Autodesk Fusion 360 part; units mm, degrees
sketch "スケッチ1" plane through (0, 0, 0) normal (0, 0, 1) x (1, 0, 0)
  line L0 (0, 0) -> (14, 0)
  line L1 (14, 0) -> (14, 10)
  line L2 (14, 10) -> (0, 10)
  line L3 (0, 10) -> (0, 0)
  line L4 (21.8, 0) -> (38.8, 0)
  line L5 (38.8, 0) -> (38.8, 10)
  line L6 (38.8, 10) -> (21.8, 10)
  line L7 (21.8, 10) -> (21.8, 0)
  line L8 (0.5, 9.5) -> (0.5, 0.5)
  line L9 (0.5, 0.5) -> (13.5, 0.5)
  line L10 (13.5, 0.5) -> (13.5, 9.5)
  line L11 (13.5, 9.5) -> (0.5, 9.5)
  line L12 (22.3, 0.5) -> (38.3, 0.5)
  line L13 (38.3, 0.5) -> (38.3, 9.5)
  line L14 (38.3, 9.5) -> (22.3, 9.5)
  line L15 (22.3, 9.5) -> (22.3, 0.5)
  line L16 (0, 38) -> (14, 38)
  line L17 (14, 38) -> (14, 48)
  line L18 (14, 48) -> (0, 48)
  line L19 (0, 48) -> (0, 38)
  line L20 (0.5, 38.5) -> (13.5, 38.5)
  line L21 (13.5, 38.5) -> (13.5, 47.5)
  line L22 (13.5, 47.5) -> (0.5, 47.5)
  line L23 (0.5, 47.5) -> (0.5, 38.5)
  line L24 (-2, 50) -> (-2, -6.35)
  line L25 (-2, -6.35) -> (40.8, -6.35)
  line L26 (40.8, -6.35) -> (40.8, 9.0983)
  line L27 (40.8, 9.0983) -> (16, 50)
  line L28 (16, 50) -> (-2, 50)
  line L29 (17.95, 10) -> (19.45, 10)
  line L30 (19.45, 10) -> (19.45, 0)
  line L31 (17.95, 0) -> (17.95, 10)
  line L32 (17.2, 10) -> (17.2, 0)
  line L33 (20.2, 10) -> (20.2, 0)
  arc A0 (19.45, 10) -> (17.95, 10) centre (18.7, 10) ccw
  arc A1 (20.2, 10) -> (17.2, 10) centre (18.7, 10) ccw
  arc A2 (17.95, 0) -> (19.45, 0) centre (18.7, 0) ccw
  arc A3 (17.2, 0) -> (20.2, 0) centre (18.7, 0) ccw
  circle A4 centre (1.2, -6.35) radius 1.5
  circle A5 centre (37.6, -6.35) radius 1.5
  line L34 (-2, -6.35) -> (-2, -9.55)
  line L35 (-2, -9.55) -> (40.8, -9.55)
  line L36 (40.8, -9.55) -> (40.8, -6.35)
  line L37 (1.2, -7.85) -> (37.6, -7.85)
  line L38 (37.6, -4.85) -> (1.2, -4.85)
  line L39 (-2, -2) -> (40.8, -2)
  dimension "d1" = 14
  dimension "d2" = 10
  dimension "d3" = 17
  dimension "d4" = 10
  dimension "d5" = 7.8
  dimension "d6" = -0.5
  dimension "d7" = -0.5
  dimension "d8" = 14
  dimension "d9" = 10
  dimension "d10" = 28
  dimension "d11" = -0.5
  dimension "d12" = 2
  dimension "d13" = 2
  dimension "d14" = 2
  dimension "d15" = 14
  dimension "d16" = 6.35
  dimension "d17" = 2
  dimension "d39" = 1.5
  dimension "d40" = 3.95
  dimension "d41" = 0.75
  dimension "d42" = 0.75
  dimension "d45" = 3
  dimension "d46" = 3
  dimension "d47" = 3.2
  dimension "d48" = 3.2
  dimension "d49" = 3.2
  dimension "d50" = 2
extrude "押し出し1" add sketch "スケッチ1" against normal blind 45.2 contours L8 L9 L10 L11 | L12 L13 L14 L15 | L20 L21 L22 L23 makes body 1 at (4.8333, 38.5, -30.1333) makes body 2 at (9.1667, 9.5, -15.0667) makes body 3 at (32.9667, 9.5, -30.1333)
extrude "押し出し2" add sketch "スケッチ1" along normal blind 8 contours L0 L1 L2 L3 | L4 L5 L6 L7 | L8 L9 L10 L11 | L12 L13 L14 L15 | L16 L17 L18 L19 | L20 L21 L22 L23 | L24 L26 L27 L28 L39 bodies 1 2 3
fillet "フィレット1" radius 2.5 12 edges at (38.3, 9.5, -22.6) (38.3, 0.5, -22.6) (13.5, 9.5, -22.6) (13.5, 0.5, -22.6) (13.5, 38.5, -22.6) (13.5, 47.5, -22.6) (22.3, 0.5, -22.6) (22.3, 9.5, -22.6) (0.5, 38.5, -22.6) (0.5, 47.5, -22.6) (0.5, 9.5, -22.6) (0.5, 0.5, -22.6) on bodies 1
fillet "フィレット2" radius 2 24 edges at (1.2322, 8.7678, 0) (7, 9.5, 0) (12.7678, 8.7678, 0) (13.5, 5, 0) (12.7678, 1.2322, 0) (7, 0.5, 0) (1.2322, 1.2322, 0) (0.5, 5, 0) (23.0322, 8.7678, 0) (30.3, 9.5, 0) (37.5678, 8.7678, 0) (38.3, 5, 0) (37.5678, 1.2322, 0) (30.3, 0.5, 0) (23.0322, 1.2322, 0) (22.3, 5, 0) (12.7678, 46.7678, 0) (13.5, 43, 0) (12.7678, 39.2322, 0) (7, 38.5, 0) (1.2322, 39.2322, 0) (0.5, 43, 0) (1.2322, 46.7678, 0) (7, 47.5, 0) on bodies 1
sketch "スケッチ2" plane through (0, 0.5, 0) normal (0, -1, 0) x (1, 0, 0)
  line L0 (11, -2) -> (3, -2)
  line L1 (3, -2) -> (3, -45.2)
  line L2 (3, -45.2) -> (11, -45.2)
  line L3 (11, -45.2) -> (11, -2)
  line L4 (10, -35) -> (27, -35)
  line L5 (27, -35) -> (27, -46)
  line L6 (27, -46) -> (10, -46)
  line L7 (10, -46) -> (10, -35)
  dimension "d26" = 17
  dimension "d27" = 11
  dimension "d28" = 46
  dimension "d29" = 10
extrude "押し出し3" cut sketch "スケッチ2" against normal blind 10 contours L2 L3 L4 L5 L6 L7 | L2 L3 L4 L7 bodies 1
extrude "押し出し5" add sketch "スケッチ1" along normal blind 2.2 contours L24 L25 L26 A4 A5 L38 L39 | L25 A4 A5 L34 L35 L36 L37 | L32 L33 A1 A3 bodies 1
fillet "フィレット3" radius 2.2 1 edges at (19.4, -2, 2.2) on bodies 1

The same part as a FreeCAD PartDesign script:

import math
import FreeCAD as App
import Part
import Sketcher
from FreeCAD import Vector
Q = App.Units.Quantity


def edges_at(feature, points):
    """Names of the edges that pass closest to the given points."""
    edges = feature.Shape.Edges
    near = lambda p: min(range(len(edges)), key=lambda i: edges[i].distToShape(Part.Vertex(*p))[0])
    return sorted({f"Edge{near(p) + 1}" for p in points})


def add_polygon(sketch, points):
    """Adds a closed chain of lines whose ends are joined by coincident constraints."""
    first, n = sketch.GeometryCount, len(points)
    for a, b in zip(points, points[1:] + points[:1]):
        sketch.addGeometry(Part.LineSegment(App.Vector(*a, 0), App.Vector(*b, 0)), False)
    for i in range(n):
        sketch.addConstraint(Sketcher.Constraint("Coincident", first + i, 2, first + (i + 1) % n, 1))

doc = App.newDocument("Part")
params = doc.addObject("Spreadsheet::Sheet", "Params")
for row, (alias, value) in enumerate([
    ("sketch1_width", "13 mm"),
    ("sketch1_width2", "16 mm"),
    ("sketch1_height", "9 mm"),
    ("pad1_length", "45.2 mm"),
    ("sketch2_radius", "1.5 mm"),
    ("sketch2_height", "10 mm"),
    ("sketch2_width", "18 mm"),
    ("sketch2_height2", "52 mm"),
    ("sketch2_width2", "42.8 mm"),
    ("pad2_length", "8 mm"),
    ("fillet_radius", "2.5 mm"),
    ("fillet2_radius", "2 mm"),
    ("sketch3_width", "17 mm"),
    ("sketch3_height", "11 mm"),
    ("pocket1_length", "10 mm"),
    ("sketch4_radius", "1.5 mm"),
    ("sketch4_height", "10 mm"),
    ("sketch4_radius2", "0.75 mm"),
    ("sketch4_width", "42.8 mm"),
    ("pad3_length", "2.2 mm"),
    ("fillet3_radius", "2.2 mm"),
], start=1):
    params.set(f"A{row}", alias)
    params.set(f"B{row}", "=" + value)
    params.setAlias(f"B{row}", alias)

body = doc.addObject("PartDesign::Body", "Body")
body.AllowCompound = True

# Sketch on XY plane
sketch1 = doc.addObject("Sketcher::SketchObject", "Sketch")
body.addObject(sketch1)
sketch1.AttachmentSupport = (doc.XY_Plane, [""])
sketch1.MapMode = "FlatFace"
add_polygon(sketch1, [(14, 10), (0, 10), (0, 0), (14, 0)])  # lines 0-3
add_polygon(sketch1, [(22, 10), (22, 0), (38, 0), (38, 10)])  # lines 4-7
add_polygon(sketch1, [(0, 48), (0, 38), (14, 38), (14, 48)])  # lines 8-11
sketch1.addConstraint(Sketcher.Constraint("Horizontal", 0))
sketch1.addConstraint(Sketcher.Constraint("Vertical", 1))
sketch1.addConstraint(Sketcher.Constraint("Horizontal", 2))
sketch1.addConstraint(Sketcher.Constraint("Vertical", 3))
sketch1.addConstraint(Sketcher.Constraint("Vertical", 4))
sketch1.addConstraint(Sketcher.Constraint("Horizontal", 5))
sketch1.addConstraint(Sketcher.Constraint("Vertical", 6))
sketch1.addConstraint(Sketcher.Constraint("Horizontal", 7))
sketch1.addConstraint(Sketcher.Constraint("Vertical", 8))
sketch1.addConstraint(Sketcher.Constraint("Horizontal", 9))
sketch1.addConstraint(Sketcher.Constraint("Vertical", 10))
sketch1.addConstraint(Sketcher.Constraint("Horizontal", 11))
sketch1.addConstraint(Sketcher.Constraint("Horizontal", 2, 2, 4, 2))
sketch1.addConstraint(Sketcher.Constraint("Horizontal", 3, 2, 6, 2))
sketch1.addConstraint(Sketcher.Constraint("Vertical", 1, 2, 8, 2))
sketch1.addConstraint(Sketcher.Constraint("Vertical", 3, 2, 9, 2))
sketch1.addConstraint(Sketcher.Constraint("Equal", 6, 8))
sketch1.addConstraint(Sketcher.Constraint("DistanceX", -1, 1, 0, 2, Q("0.5 mm")))
sketch1.addConstraint(Sketcher.Constraint("DistanceY", -1, 1, 1, 2, Q("0.5 mm")))
sketch1.addConstraint(Sketcher.Constraint("DistanceX", 0, 2, 0, 1, Q("13 mm")))
sketch1.addConstraint(Sketcher.Constraint("DistanceX", 5, 1, 5, 2, Q("16 mm")))
sketch1.addConstraint(Sketcher.Constraint("DistanceY", 1, 2, 1, 1, Q("9 mm")))
sketch1.addConstraint(Sketcher.Constraint("DistanceY", 0, 2, 8, 2, Q("29 mm")))
sketch1.addConstraint(Sketcher.Constraint("DistanceX", -1, 1, 4, 2, Q("22.3 mm")))
sketch1.setExpression("Constraints[31]", "Params.sketch1_width")
sketch1.setExpression("Constraints[32]", "Params.sketch1_width2")
sketch1.setExpression("Constraints[33]", "Params.sketch1_height")
pad1 = doc.addObject("PartDesign::Pad", "Pad")
body.addObject(pad1)
pad1.Profile = sketch1
pad1.setExpression("Length", "Params.pad1_length")
pad1.Reversed = True

# Sketch on XY plane
sketch2 = doc.addObject("Sketcher::SketchObject", "Sketch001")
body.addObject(sketch2)
sketch2.AttachmentSupport = (doc.XY_Plane, [""])
sketch2.MapMode = "FlatFace"
add_polygon(sketch2, [(16, 50), (-2, 50), (-2, -2), (40.8, -2), (40.8, 9.1)])  # lines 0-4
sketch2.addGeometry(Part.LineSegment(Vector(17.2, 0, 0), Vector(17.2, 10, 0)), False)  # 5
sketch2.addGeometry(Part.ArcOfCircle(Part.Circle(Vector(18.7, 10, 0), Vector(0, 0, 1), 1.5), math.radians(0), math.radians(180)), False)  # 6
sketch2.addGeometry(Part.LineSegment(Vector(20.2, 10, 0), Vector(20.2, 0, 0)), False)  # 7
sketch2.addGeometry(Part.ArcOfCircle(Part.Circle(Vector(18.7, 0, 0), Vector(0, 0, 1), 1.5), math.radians(180), math.radians(360)), False)  # 8
sketch2.addConstraint(Sketcher.Constraint("Tangent", 5, 2, 6, 2))
sketch2.addConstraint(Sketcher.Constraint("Tangent", 6, 1, 7, 1))
sketch2.addConstraint(Sketcher.Constraint("Tangent", 7, 2, 8, 2))
sketch2.addConstraint(Sketcher.Constraint("Tangent", 8, 1, 5, 1))
sketch2.addConstraint(Sketcher.Constraint("Horizontal", 0))
sketch2.addConstraint(Sketcher.Constraint("Vertical", 1))
sketch2.addConstraint(Sketcher.Constraint("Horizontal", 2))
sketch2.addConstraint(Sketcher.Constraint("Vertical", 3))
sketch2.addConstraint(Sketcher.Constraint("Vertical", 5))
sketch2.addConstraint(Sketcher.Constraint("Vertical", 7))
sketch2.addConstraint(Sketcher.Constraint("PointOnObject", 8, 3, -1))
sketch2.addConstraint(Sketcher.Constraint("Radius", 6, Q("1.5 mm")))
sketch2.addConstraint(Sketcher.Constraint("DistanceY", 5, 1, 5, 2, Q("10 mm")))
sketch2.addConstraint(Sketcher.Constraint("DistanceX", 0, 2, -1, 1, Q("2 mm")))
sketch2.addConstraint(Sketcher.Constraint("DistanceY", 1, 2, -1, 1, Q("2 mm")))
sketch2.addConstraint(Sketcher.Constraint("DistanceX", 0, 2, 0, 1, Q("18 mm")))
sketch2.addConstraint(Sketcher.Constraint("DistanceY", 1, 2, 1, 1, Q("52 mm")))
sketch2.addConstraint(Sketcher.Constraint("DistanceX", 2, 1, 2, 2, Q("42.8 mm")))
sketch2.addConstraint(Sketcher.Constraint("DistanceX", -1, 1, 6, 3, Q("18.7 mm")))
sketch2.addConstraint(Sketcher.Constraint("Angle", 4, Q("121.2298 deg")))
sketch2.setExpression("Constraints[16]", "Params.sketch2_radius")
sketch2.setExpression("Constraints[17]", "Params.sketch2_height")
sketch2.setExpression("Constraints[20]", "Params.sketch2_width")
sketch2.setExpression("Constraints[21]", "Params.sketch2_height2")
sketch2.setExpression("Constraints[22]", "Params.sketch2_width2")
pad2 = doc.addObject("PartDesign::Pad", "Pad001")
body.addObject(pad2)
pad2.Profile = sketch2
pad2.setExpression("Length", "Params.pad2_length")
doc.recompute()

fillet = doc.addObject("PartDesign::Fillet", "Fillet")
body.addObject(fillet)
fillet.Base = (pad2, edges_at(pad2, [
    (38.3, 9.5, -22.6),
    (38.3, 0.5, -22.6),
    (13.5, 9.5, -22.6),
    (13.5, 0.5, -22.6),
    (13.5, 38.5, -22.6),
    (13.5, 47.5, -22.6),
    (22.3, 0.5, -22.6),
    (22.3, 9.5, -22.6),
    (0.5, 38.5, -22.6),
    (0.5, 47.5, -22.6),
    (0.5, 9.5, -22.6),
    (0.5, 0.5, -22.6),
]))
fillet.setExpression("Radius", "Params.fillet_radius")
doc.recompute()

fillet2 = doc.addObject("PartDesign::Fillet", "Fillet001")
body.addObject(fillet2)
fillet2.Base = (fillet, edges_at(fillet, [
    (1.232, 8.768, 0),
    (7, 9.5, 0),
    (12.768, 8.768, 0),
    (13.5, 5, 0),
    (12.768, 1.232, 0),
    (7, 0.5, 0),
    (1.232, 1.232, 0),
    (0.5, 5, 0),
    (23.032, 8.768, 0),
    (30.3, 9.5, 0),
    (37.568, 8.768, 0),
    (38.3, 5, 0),
    (37.568, 1.232, 0),
    (30.3, 0.5, 0),
    (23.032, 1.232, 0),
    (22.3, 5, 0),
    (12.768, 46.768, 0),
    (13.5, 43, 0),
    (12.768, 39.232, 0),
    (7, 38.5, 0),
    (1.232, 39.232, 0),
    (0.5, 43, 0),
    (1.232, 46.768, 0),
    (7, 47.5, 0),
]))
fillet2.setExpression("Radius", "Params.fillet2_radius")

# Sketch on XZ plane
sketch3 = doc.addObject("Sketcher::SketchObject", "Sketch002")
body.addObject(sketch3)
sketch3.AttachmentSupport = (doc.XZ_Plane, [""])
sketch3.MapMode = "FlatFace"
sketch3.AttachmentOffset = App.Placement(Vector(0, 0, -0.5), App.Rotation())
add_polygon(sketch3, [(27, -35), (10, -35), (10, -46), (27, -46)])  # lines 0-3
sketch3.addConstraint(Sketcher.Constraint("Horizontal", 0))
sketch3.addConstraint(Sketcher.Constraint("Vertical", 1))
sketch3.addConstraint(Sketcher.Constraint("Horizontal", 2))
sketch3.addConstraint(Sketcher.Constraint("Vertical", 3))
sketch3.addConstraint(Sketcher.Constraint("DistanceX", 0, 2, 0, 1, Q("17 mm")))
sketch3.addConstraint(Sketcher.Constraint("DistanceY", 1, 2, 1, 1, Q("11 mm")))
sketch3.addConstraint(Sketcher.Constraint("DistanceX", -1, 1, 0, 2, Q("10 mm")))
sketch3.addConstraint(Sketcher.Constraint("DistanceY", 1, 2, -1, 1, Q("46 mm")))
sketch3.setExpression("Constraints[8]", "Params.sketch3_width")
sketch3.setExpression("Constraints[9]", "Params.sketch3_height")
pocket1 = doc.addObject("PartDesign::Pocket", "Pocket")
body.addObject(pocket1)
pocket1.Profile = sketch3
pocket1.setExpression("Length", "Params.pocket1_length")

# Sketch on XY plane
sketch4 = doc.addObject("Sketcher::SketchObject", "Sketch003")
body.addObject(sketch4)
sketch4.AttachmentSupport = (doc.XY_Plane, [""])
sketch4.MapMode = "FlatFace"
add_polygon(sketch4, [(40.8, -2), (-2, -2), (-2, -9.6), (40.8, -9.6)])  # lines 0-3
sketch4.addGeometry(Part.ArcOfCircle(Part.Circle(Vector(37.6, -6.3, 0), Vector(0, 0, 1), 1.5), math.radians(-90), math.radians(90)), False)  # 4
sketch4.addGeometry(Part.LineSegment(Vector(37.6, -7.8, 0), Vector(1.2, -7.8, 0)), False)  # 5
sketch4.addGeometry(Part.ArcOfCircle(Part.Circle(Vector(1.2, -6.3, 0), Vector(0, 0, 1), 1.5), math.radians(90), math.radians(270)), False)  # 6
sketch4.addGeometry(Part.LineSegment(Vector(1.2, -4.8, 0), Vector(37.6, -4.8, 0)), False)  # 7
sketch4.addGeometry(Part.ArcOfCircle(Part.Circle(Vector(18.7, 10, 0), Vector(0, 0, 1), 1.5), math.radians(0), math.radians(180)), False)  # 8
sketch4.addGeometry(Part.LineSegment(Vector(17.2, 10, 0), Vector(17.2, 0, 0)), False)  # 9
sketch4.addGeometry(Part.ArcOfCircle(Part.Circle(Vector(18.7, 0, 0), Vector(0, 0, 1), 1.5), math.radians(180), math.radians(360)), False)  # 10
sketch4.addGeometry(Part.LineSegment(Vector(20.2, 0, 0), Vector(20.2, 10, 0)), False)  # 11
sketch4.addGeometry(Part.LineSegment(Vector(17.9, 0, 0), Vector(17.9, 10, 0)), False)  # 12
sketch4.addGeometry(Part.ArcOfCircle(Part.Circle(Vector(18.7, 10, 0), Vector(0, 0, 1), 0.8), math.radians(0), math.radians(180)), False)  # 13
sketch4.addGeometry(Part.LineSegment(Vector(19.4, 10, 0), Vector(19.4, 0, 0)), False)  # 14
sketch4.addGeometry(Part.ArcOfCircle(Part.Circle(Vector(18.7, 0, 0), Vector(0, 0, 1), 0.8), math.radians(180), math.radians(360)), False)  # 15
sketch4.addConstraint(Sketcher.Constraint("Tangent", 4, 1, 5, 1))
sketch4.addConstraint(Sketcher.Constraint("Tangent", 5, 2, 6, 2))
sketch4.addConstraint(Sketcher.Constraint("Tangent", 6, 1, 7, 1))
sketch4.addConstraint(Sketcher.Constraint("Tangent", 7, 2, 4, 2))
sketch4.addConstraint(Sketcher.Constraint("Tangent", 8, 2, 9, 1))
sketch4.addConstraint(Sketcher.Constraint("Tangent", 9, 2, 10, 1))
sketch4.addConstraint(Sketcher.Constraint("Tangent", 10, 2, 11, 1))
sketch4.addConstraint(Sketcher.Constraint("Tangent", 11, 2, 8, 1))
sketch4.addConstraint(Sketcher.Constraint("Tangent", 12, 2, 13, 2))
sketch4.addConstraint(Sketcher.Constraint("Tangent", 13, 1, 14, 1))
sketch4.addConstraint(Sketcher.Constraint("Tangent", 14, 2, 15, 2))
sketch4.addConstraint(Sketcher.Constraint("Tangent", 15, 1, 12, 1))
sketch4.addConstraint(Sketcher.Constraint("Horizontal", 0))
sketch4.addConstraint(Sketcher.Constraint("Vertical", 1))
sketch4.addConstraint(Sketcher.Constraint("Horizontal", 2))
sketch4.addConstraint(Sketcher.Constraint("Vertical", 3))
sketch4.addConstraint(Sketcher.Constraint("Horizontal", 5))
sketch4.addConstraint(Sketcher.Constraint("Horizontal", 7))
sketch4.addConstraint(Sketcher.Constraint("Vertical", 9))
sketch4.addConstraint(Sketcher.Constraint("Vertical", 11))
sketch4.addConstraint(Sketcher.Constraint("Vertical", 12))
sketch4.addConstraint(Sketcher.Constraint("Vertical", 14))
sketch4.addConstraint(Sketcher.Constraint("Coincident", 13, 3, 8, 3))
sketch4.addConstraint(Sketcher.Constraint("Equal", 6, 8))
sketch4.addConstraint(Sketcher.Constraint("PointOnObject", 10, 3, -1))
sketch4.addConstraint(Sketcher.Constraint("PointOnObject", 15, 3, -1))
sketch4.addConstraint(Sketcher.Constraint("Radius", 4, Q("1.5 mm")))
sketch4.addConstraint(Sketcher.Constraint("DistanceY", 9, 2, 9, 1, Q("10 mm")))
sketch4.addConstraint(Sketcher.Constraint("Radius", 13, Q("0.75 mm")))
sketch4.addConstraint(Sketcher.Constraint("DistanceX", 0, 2, -1, 1, Q("2 mm")))
sketch4.addConstraint(Sketcher.Constraint("DistanceY", 0, 2, -1, 1, Q("2 mm")))
sketch4.addConstraint(Sketcher.Constraint("DistanceX", 0, 2, 6, 3, Q("3.2 mm")))
sketch4.addConstraint(Sketcher.Constraint("DistanceY", 1, 2, 6, 3, Q("3.2 mm")))
sketch4.addConstraint(Sketcher.Constraint("DistanceX", 4, 3, 2, 2, Q("3.2 mm")))
sketch4.addConstraint(Sketcher.Constraint("DistanceY", 4, 3, -1, 1, Q("6.35 mm")))
sketch4.addConstraint(Sketcher.Constraint("DistanceX", 0, 2, 0, 1, Q("42.8 mm")))
sketch4.addConstraint(Sketcher.Constraint("DistanceX", 6, 1, 8, 2, Q("16 mm")))
sketch4.setExpression("Constraints[30]", "Params.sketch4_radius")
sketch4.setExpression("Constraints[31]", "Params.sketch4_height")
sketch4.setExpression("Constraints[32]", "Params.sketch4_radius2")
sketch4.setExpression("Constraints[39]", "Params.sketch4_width")
pad3 = doc.addObject("PartDesign::Pad", "Pad002")
body.addObject(pad3)
pad3.Profile = sketch4
pad3.setExpression("Length", "Params.pad3_length")
doc.recompute()

fillet3 = doc.addObject("PartDesign::Fillet", "Fillet002")
body.addObject(fillet3)
fillet3.Base = (pad3, edges_at(pad3, [(19.4, -2, 2.2)]))
fillet3.setExpression("Radius", "Params.fillet3_radius")

doc.recompute()
